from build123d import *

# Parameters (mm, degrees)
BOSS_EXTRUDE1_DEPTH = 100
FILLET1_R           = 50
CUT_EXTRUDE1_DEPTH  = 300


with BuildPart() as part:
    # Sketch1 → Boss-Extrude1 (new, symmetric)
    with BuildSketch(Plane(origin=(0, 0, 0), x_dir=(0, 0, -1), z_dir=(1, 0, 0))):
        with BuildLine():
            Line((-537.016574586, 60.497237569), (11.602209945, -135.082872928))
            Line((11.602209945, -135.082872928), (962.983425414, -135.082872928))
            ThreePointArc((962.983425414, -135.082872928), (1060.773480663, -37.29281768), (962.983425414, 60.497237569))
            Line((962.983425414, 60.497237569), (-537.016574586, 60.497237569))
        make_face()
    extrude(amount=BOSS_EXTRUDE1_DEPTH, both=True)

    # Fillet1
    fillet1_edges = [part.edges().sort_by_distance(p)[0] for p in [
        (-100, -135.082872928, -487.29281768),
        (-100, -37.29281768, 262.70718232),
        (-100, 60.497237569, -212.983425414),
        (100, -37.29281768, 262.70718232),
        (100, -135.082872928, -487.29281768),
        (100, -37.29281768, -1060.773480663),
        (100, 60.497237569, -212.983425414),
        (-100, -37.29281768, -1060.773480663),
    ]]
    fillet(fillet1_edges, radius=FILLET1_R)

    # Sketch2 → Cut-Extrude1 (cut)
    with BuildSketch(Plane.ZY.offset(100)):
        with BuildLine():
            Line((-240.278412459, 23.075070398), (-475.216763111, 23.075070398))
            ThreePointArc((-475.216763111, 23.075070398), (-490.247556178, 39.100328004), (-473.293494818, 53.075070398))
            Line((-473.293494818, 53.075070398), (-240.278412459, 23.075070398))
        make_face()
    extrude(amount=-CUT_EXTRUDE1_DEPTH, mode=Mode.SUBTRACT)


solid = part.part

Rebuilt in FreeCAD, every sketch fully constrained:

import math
import FreeCAD as App
import Part
import Sketcher

V = App.Vector
Q = App.Units.Quantity


def edges_at(feature, points):
    """Names of the edges that pass closest to the given points."""
    edges = feature.Shape.Edges
    near = lambda p: min(range(len(edges)), key=lambda i: edges[i].distToShape(Part.Vertex(*p))[0])
    return sorted({f"Edge{near(p) + 1}" for p in points})

doc = App.newDocument("Part")
params = doc.addObject("Spreadsheet::Sheet", "Params")
for row, (alias, value) in enumerate([
    ("sketch1_height", "1500 mm"),
    ("pad1_length", "200 mm"),
    ("fillet_radius", "50 mm"),
    ("pocket1_length", "300 mm"),
], start=1):
    params.set(f"A{row}", alias)
    params.set(f"B{row}", "=" + value)
    params.setAlias(f"B{row}", alias)

body = doc.addObject("PartDesign::Body", "Body")

# Sketch on YZ plane
sketch1 = body.newObject("Sketcher::SketchObject", "Sketch")
sketch1.AttachmentSupport = (doc.getObject("YZ_Plane"), [""])
sketch1.MapMode = "FlatFace"
sketch1.addGeometry([
    Part.LineSegment(V(60.497238, 537.016575, 0), V(-135.082873, -11.60221, 0)),
    Part.LineSegment(V(-135.082873, -11.60221, 0), V(-135.082873, -962.983425, 0)),
    Part.ArcOfCircle(Part.Circle(V(-37.292818, -962.983425, 0), V(0, 0, 1), 97.790055), math.radians(180), math.radians(360)),
    Part.LineSegment(V(60.497238, -962.983425, 0), V(60.497238, 537.016575, 0)),
], False)
sketch1.addConstraint([
    Sketcher.Constraint("Coincident", 0, 2, 1, 1),
    Sketcher.Constraint("Tangent", 1, 2, 2, 1),
    Sketcher.Constraint("Tangent", 2, 2, 3, 1),
    Sketcher.Constraint("Coincident", 3, 2, 0, 1),
    Sketcher.Constraint("Vertical", 1),
    Sketcher.Constraint("Vertical", 3),
    Sketcher.Constraint("DistanceY", 3, 1, 3, 2, Q("1500 mm")),
    Sketcher.Constraint("Radius", 2, Q("97.790055 mm")),
    Sketcher.Constraint("Distance", 0, Q("582.438109 mm")),
    Sketcher.Constraint("DistanceY", 0, 2, -1, 1, Q("11.60221 mm")),
    Sketcher.Constraint("DistanceX", 2, 3, -1, 1, Q("37.292818 mm")),
])
sketch1.setExpression("Constraints[6]", "Params.sketch1_height")
pad1 = body.newObject("PartDesign::Pad", "Pad")
pad1.Profile = sketch1
pad1.setExpression("Length", "Params.pad1_length")
pad1.Midplane = True
doc.recompute()

fillet = body.newObject("PartDesign::Fillet", "Fillet")
fillet.Base = (pad1, edges_at(pad1, [
    (-100, -135.083, -487.293),
    (-100, -37.293, 262.707),
    (-100, 60.497, -212.983),
    (100, -37.293, 262.707),
    (100, -135.083, -487.293),
    (100, -37.293, -1060.773),
    (100, 60.497, -212.983),
    (-100, -37.293, -1060.773),
]))
fillet.setExpression("Radius", "Params.fillet_radius")

# Sketch on YZ plane
sketch2 = body.newObject("Sketcher::SketchObject", "Sketch001")
sketch2.AttachmentSupport = (doc.getObject("YZ_Plane"), [""])
sketch2.MapMode = "FlatFace"
sketch2.AttachmentOffset = App.Placement(V(0, 0, -100), App.Rotation())
sketch2.addGeometry([
    Part.LineSegment(V(23.07507, -475.216763, 0), V(23.07507, -240.278412, 0)),
    Part.LineSegment(V(23.07507, -240.278412, 0), V(53.07507, -473.293495, 0)),
    Part.ArcOfCircle(Part.Circle(V(38.13672, -475.216763, 0), V(0, 0, 1), 15.061649), math.radians(180), math.radians(367.336304)),
], False)
sketch2.addConstraint([
    Sketcher.Constraint("Coincident", 0, 2, 1, 1),
    Sketcher.Constraint("Tangent", 1, 2, 2, 2),
    Sketcher.Constraint("Tangent", 2, 1, 0, 1),
    Sketcher.Constraint("Vertical", 0),
    Sketcher.Constraint("DistanceX", 0, 2, 1, 2, Q("30 mm")),
    Sketcher.Constraint("DistanceY", 0, 1, 0, 2, Q("234.938351 mm")),
    Sketcher.Constraint("DistanceX", -1, 1, 2, 3, Q("38.13672 mm")),
    Sketcher.Constraint("DistanceY", 2, 3, -1, 1, Q("475.216763 mm")),
])
pocket1 = body.newObject("PartDesign::Pocket", "Pocket")
pocket1.Profile = sketch2
pocket1.setExpression("Length", "Params.pocket1_length")
pocket1.Reversed = True

doc.recompute()
